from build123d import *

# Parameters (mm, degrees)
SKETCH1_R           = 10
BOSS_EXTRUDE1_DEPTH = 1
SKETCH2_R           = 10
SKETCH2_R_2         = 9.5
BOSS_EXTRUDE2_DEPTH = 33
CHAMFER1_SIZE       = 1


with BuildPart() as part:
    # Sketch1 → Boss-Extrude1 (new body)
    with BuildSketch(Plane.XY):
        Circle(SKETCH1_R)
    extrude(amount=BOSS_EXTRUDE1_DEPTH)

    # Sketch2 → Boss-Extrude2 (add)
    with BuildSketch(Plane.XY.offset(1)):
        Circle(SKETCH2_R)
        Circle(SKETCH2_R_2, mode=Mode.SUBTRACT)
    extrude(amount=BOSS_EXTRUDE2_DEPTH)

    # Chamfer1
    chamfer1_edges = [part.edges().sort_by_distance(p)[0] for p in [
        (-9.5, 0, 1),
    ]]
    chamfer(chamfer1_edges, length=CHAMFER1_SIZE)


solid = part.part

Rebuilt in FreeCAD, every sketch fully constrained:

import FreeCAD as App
import Part
import Sketcher

V = App.Vector
Q = App.Units.Quantity


def edges_at(feature, points):
    """Names of the edges that pass closest to the given points."""
    edges = feature.Shape.Edges
    near = lambda p: min(range(len(edges)), key=lambda i: edges[i].distToShape(Part.Vertex(*p))[0])
    return sorted({f"Edge{near(p) + 1}" for p in points})

doc = App.newDocument("Part")
body = doc.addObject("PartDesign::Body", "Body")

# Sketch on XY plane
sketch1 = body.newObject("Sketcher::SketchObject", "Sketch")
sketch1.AttachmentSupport = (doc.getObject("XY_Plane"), [""])
sketch1.MapMode = "FlatFace"
sketch1.addGeometry(Part.Circle(V(0, 0, 0), V(0, 0, 1), 10), False)
sketch1.addConstraint([
    Sketcher.Constraint("Coincident", 0, 3, -1, 1),
    Sketcher.Constraint("Diameter", 0, Q("20 mm")),
])
pad1 = body.newObject("PartDesign::Pad", "Pad")
pad1.Profile = sketch1
pad1.Length = 1

# Sketch on XY plane
sketch2 = body.newObject("Sketcher::SketchObject", "Sketch001")
sketch2.AttachmentSupport = (doc.getObject("XY_Plane"), [""])
sketch2.MapMode = "FlatFace"
sketch2.AttachmentOffset = App.Placement(V(0, 0, 1), App.Rotation())
sketch2.addGeometry([
    Part.Circle(V(0, 0, 0), V(0, 0, 1), 10),
    Part.Circle(V(0, 0, 0), V(0, 0, 1), 10),
], False)
sketch2.addConstraint([
    Sketcher.Constraint("Coincident", 0, 3, -1, 1),
    Sketcher.Constraint("Coincident", 1, 3, -1, 1),
    Sketcher.Constraint("Diameter", 0, Q("20 mm")),
    Sketcher.Constraint("Diameter", 1, Q("19 mm")),
])
pad2 = body.newObject("PartDesign::Pad", "Pad001")
pad2.Profile = sketch2
pad2.Length = 33
doc.recompute()

chamfer = body.newObject("PartDesign::Chamfer", "Chamfer")
chamfer.Base = (pad2, edges_at(pad2, [(-9.5, 0, 1)]))
chamfer.Size = 1

doc.recompute()
